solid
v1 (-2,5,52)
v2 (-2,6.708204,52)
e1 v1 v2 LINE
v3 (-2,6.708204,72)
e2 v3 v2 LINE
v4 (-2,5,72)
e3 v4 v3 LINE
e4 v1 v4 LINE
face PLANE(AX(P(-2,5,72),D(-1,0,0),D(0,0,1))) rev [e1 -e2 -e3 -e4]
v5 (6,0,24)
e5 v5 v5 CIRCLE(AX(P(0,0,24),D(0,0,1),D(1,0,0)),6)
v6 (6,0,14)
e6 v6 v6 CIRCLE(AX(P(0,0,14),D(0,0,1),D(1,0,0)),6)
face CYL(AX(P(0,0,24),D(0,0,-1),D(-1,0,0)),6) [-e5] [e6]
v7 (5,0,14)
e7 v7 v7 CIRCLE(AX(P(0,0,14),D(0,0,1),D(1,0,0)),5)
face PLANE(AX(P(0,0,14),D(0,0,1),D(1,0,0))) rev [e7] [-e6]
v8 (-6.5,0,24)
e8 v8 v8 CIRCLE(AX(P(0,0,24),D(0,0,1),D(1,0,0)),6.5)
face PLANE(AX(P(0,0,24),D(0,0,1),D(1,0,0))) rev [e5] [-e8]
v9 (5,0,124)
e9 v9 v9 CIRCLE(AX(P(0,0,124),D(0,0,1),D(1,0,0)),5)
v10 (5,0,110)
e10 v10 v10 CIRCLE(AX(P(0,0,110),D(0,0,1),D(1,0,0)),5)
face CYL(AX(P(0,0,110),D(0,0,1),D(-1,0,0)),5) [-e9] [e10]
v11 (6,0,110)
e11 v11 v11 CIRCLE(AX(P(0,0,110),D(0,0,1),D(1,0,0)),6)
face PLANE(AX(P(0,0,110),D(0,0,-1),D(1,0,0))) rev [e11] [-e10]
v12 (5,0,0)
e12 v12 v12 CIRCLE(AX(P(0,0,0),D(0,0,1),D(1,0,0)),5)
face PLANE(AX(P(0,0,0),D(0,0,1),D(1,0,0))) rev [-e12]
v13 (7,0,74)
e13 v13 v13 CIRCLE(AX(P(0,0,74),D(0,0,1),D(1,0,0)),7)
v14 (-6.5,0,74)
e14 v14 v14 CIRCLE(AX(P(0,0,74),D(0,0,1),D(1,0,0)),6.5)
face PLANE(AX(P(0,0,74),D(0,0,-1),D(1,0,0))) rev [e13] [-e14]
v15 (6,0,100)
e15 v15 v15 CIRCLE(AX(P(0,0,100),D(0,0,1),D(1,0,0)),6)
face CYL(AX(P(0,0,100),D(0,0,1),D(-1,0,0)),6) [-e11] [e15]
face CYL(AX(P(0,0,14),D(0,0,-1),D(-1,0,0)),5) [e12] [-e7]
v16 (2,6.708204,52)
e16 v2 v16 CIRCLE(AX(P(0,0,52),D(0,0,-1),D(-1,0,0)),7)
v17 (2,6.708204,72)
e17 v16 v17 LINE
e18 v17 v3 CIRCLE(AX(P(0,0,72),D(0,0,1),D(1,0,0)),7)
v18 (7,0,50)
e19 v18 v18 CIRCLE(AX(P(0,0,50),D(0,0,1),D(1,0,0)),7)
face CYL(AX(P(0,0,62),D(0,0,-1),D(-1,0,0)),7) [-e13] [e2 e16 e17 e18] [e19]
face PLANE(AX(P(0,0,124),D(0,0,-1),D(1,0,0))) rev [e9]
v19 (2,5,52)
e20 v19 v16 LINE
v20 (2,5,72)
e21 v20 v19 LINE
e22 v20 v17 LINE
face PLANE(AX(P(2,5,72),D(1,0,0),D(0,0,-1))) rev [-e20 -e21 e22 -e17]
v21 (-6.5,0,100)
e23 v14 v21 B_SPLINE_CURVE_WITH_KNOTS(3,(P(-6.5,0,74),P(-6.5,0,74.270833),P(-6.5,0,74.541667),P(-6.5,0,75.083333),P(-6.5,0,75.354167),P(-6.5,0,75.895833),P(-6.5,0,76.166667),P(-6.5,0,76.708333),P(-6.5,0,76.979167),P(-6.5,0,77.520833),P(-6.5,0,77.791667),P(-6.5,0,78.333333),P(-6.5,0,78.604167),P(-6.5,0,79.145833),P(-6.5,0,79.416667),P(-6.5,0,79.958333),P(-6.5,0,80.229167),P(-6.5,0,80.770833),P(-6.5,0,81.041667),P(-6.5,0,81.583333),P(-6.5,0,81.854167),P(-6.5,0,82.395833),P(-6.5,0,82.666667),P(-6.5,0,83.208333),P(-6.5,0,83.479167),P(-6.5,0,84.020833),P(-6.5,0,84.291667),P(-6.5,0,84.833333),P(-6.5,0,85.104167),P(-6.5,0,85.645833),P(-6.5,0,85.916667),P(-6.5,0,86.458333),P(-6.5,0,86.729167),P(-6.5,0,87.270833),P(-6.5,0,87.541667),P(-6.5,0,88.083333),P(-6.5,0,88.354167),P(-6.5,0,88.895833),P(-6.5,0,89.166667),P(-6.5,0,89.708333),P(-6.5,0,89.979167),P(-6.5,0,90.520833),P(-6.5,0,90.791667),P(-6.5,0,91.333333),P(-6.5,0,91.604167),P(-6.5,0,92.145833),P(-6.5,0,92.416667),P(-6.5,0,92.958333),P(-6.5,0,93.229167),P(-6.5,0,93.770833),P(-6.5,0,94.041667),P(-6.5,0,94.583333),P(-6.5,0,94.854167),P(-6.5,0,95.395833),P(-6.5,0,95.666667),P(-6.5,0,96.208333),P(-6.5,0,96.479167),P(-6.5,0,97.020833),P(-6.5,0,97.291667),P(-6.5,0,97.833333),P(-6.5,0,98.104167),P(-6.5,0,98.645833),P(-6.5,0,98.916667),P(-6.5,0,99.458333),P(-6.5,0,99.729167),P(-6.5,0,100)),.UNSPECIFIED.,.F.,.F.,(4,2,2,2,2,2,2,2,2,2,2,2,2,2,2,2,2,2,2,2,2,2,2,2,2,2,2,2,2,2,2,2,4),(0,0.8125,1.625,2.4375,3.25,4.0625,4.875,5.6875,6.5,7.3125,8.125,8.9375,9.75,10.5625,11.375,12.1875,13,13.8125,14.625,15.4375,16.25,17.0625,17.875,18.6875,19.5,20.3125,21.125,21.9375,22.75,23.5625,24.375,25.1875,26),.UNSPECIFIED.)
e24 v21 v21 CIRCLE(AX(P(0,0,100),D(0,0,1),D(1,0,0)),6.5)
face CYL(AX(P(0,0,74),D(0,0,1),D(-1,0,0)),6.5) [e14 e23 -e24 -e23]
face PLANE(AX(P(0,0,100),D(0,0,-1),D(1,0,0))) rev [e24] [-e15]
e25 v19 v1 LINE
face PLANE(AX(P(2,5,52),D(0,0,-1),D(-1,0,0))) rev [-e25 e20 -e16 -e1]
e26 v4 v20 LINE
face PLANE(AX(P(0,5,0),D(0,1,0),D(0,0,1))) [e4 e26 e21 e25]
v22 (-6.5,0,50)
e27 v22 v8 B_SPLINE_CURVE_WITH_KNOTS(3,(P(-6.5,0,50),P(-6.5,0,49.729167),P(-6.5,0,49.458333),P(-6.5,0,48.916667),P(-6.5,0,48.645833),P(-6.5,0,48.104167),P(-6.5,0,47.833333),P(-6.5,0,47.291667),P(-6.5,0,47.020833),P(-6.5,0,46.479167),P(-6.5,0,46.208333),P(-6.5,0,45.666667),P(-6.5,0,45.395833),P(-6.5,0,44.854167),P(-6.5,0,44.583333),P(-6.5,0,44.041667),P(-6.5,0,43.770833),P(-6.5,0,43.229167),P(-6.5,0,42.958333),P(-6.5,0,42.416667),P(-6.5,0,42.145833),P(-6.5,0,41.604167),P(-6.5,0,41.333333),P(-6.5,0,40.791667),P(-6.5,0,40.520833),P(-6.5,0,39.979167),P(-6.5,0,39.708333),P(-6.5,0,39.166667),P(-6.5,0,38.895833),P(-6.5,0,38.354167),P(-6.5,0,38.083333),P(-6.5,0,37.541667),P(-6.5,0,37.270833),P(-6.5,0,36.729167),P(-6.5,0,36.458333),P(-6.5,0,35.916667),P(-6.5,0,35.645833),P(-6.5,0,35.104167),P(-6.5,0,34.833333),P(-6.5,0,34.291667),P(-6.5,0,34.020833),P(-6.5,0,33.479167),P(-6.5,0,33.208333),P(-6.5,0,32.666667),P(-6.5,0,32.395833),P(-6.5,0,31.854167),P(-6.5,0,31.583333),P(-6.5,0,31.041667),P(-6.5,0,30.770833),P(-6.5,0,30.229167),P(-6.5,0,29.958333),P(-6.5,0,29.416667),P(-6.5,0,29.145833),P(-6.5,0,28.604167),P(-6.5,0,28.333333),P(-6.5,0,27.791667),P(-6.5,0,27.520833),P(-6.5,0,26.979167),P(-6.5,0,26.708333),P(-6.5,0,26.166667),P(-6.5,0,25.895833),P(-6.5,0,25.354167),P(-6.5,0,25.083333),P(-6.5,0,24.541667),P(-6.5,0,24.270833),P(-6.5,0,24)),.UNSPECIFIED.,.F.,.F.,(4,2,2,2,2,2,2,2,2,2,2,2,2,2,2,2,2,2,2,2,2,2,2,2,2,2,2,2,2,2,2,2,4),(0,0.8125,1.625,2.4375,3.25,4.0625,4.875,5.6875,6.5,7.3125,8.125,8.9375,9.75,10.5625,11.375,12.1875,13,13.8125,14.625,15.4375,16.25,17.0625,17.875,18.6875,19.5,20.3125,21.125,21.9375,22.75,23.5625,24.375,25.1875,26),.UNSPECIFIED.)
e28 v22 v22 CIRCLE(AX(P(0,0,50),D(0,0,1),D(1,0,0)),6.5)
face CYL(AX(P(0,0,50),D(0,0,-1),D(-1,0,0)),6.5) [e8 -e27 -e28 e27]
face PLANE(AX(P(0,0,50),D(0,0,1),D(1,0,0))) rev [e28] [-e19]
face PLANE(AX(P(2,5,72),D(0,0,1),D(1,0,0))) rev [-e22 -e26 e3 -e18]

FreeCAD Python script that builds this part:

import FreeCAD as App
import Part
import Sketcher
from FreeCAD import Vector
Q = App.Units.Quantity


def add_polygon(sketch, points):
    """Adds a closed chain of lines whose ends are joined by coincident constraints."""
    first, n = sketch.GeometryCount, len(points)
    for a, b in zip(points, points[1:] + points[:1]):
        sketch.addGeometry(Part.LineSegment(App.Vector(*a, 0), App.Vector(*b, 0)), False)
    for i in range(n):
        sketch.addConstraint(Sketcher.Constraint("Coincident", first + i, 2, first + (i + 1) % n, 1))

doc = App.newDocument("Part")
body = doc.addObject("PartDesign::Body", "Body")

sketch1 = body.newObject("Sketcher::SketchObject", "Sketch")
sketch1.AttachmentSupport = (doc.getObject("XY_Plane"), [""])
sketch1.MapMode = "FlatFace"
sketch1.addGeometry(Part.Circle(Vector(0, 0, 0), Vector(0, 0, 1), 5), False)
sketch1.addConstraint(Sketcher.Constraint("Coincident", 0, 3, -1, 1))
sketch1.addConstraint(Sketcher.Constraint("Diameter", 0, Q("10 mm")))
pad1 = body.newObject("PartDesign::Pad", "Pad")
pad1.Profile = sketch1
pad1.Length = 14

sketch2 = body.newObject("Sketcher::SketchObject", "Sketch001")
sketch2.AttachmentSupport = (doc.getObject("XY_Plane"), [""])
sketch2.MapMode = "FlatFace"
sketch2.AttachmentOffset = App.Placement(Vector(0, 0, 14), App.Rotation())
sketch2.addGeometry(Part.Circle(Vector(0, 0, 0), Vector(0, 0, 1), 6), False)
sketch2.addConstraint(Sketcher.Constraint("Coincident", 0, 3, -1, 1))
sketch2.addConstraint(Sketcher.Constraint("Diameter", 0, Q("12 mm")))
pad2 = body.newObject("PartDesign::Pad", "Pad001")
pad2.Profile = sketch2
pad2.Length = 10

sketch3 = body.newObject("Sketcher::SketchObject", "Sketch002")
sketch3.AttachmentSupport = (doc.getObject("XY_Plane"), [""])
sketch3.MapMode = "FlatFace"
sketch3.AttachmentOffset = App.Placement(Vector(0, 0, 24), App.Rotation())
sketch3.addGeometry(Part.Circle(Vector(0, 0, 0), Vector(0, 0, 1), 6), False)
sketch3.addConstraint(Sketcher.Constraint("Coincident", 0, 3, -1, 1))
sketch3.addConstraint(Sketcher.Constraint("Diameter", 0, Q("13 mm")))
pad3 = body.newObject("PartDesign::Pad", "Pad002")
pad3.Profile = sketch3
pad3.Length = 26

sketch4 = body.newObject("Sketcher::SketchObject", "Sketch003")
sketch4.AttachmentSupport = (doc.getObject("XY_Plane"), [""])
sketch4.MapMode = "FlatFace"
sketch4.AttachmentOffset = App.Placement(Vector(0, 0, 50), App.Rotation())
sketch4.addGeometry(Part.Circle(Vector(0, 0, 0), Vector(0, 0, 1), 7), False)
sketch4.addConstraint(Sketcher.Constraint("Coincident", 0, 3, -1, 1))
sketch4.addConstraint(Sketcher.Constraint("Diameter", 0, Q("14 mm")))
pad4 = body.newObject("PartDesign::Pad", "Pad003")
pad4.Profile = sketch4
pad4.Length = 12
body2 = doc.addObject("PartDesign::Body", "Body001")
doc.recompute()

body2.BaseFeature = body
doc.recompute()

mirroring = doc.addObject("Part::Mirroring", "Mirroring")
mirroring.Source = body
mirroring.Base = Vector(0, 0, 62)
mirroring.Normal = Vector(0, 0, 1)
body3 = doc.addObject("PartDesign::Body", "Body002")
body3.BaseFeature = mirroring
boolean = body2.newObject("PartDesign::Boolean", "Boolean")
boolean.Type = "Fuse"
boolean.addObjects([body3])
doc.recompute()

sketch5 = body2.newObject("Sketcher::SketchObject", "Sketch004")
sketch5.AttachmentSupport = (doc.getObject("XZ_Plane001"), [""])
sketch5.MapMode = "FlatFace"
sketch5.AttachmentOffset = App.Placement(Vector(0, 0, -7), App.Rotation())
add_polygon(sketch5, [(2, 72), (2, 52), (-2, 52), (-2, 72)])
sketch5.addConstraint(Sketcher.Constraint("Vertical", 0))
sketch5.addConstraint(Sketcher.Constraint("Horizontal", 1))
sketch5.addConstraint(Sketcher.Constraint("Vertical", 2))
sketch5.addConstraint(Sketcher.Constraint("Horizontal", 3))
sketch5.addConstraint(Sketcher.Constraint("DistanceX", 1, 2, 1, 1, Q("4 mm")))
sketch5.addConstraint(Sketcher.Constraint("DistanceY", 0, 2, 0, 1, Q("20 mm")))
sketch5.addConstraint(Sketcher.Constraint("DistanceX", -1, 1, 0, 2, Q("2 mm")))
sketch5.addConstraint(Sketcher.Constraint("DistanceY", -1, 1, 0, 2, Q("52 mm")))
pocket1 = body2.newObject("PartDesign::Pocket", "Pocket")
pocket1.Profile = sketch5
pocket1.Length = 2
pocket1.Reversed = True
mirroring.Visibility = False

doc.recompute()
